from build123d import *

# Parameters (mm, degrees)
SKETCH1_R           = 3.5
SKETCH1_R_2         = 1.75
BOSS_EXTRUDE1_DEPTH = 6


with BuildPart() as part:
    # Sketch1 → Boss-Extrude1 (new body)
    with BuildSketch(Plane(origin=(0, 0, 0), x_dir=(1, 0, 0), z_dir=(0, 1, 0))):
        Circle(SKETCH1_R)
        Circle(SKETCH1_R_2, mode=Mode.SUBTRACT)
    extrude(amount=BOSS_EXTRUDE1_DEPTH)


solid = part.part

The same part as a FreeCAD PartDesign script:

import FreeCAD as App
import Part
import Sketcher

doc = App.newDocument("Part")
body = doc.addObject("PartDesign::Body", "Body")

sketch1 = doc.addObject("Sketcher::SketchObject", "Sketch")
body.addObject(sketch1)
sketch1.AttachmentSupport = (doc.XZ_Plane, [""])
sketch1.MapMode = "FlatFace"
sketch1.addGeometry([
    Part.Circle(App.Vector(0, 0, 0), App.Vector(0, 0, 1), 3.5),
    Part.Circle(App.Vector(0, 0, 0), App.Vector(0, 0, 1), 1.8),
], False)
sketch1.addConstraint([
    Sketcher.Constraint("Coincident", 0, 3, -1, 1),
    Sketcher.Constraint("Coincident", 1, 3, -1, 1),
    Sketcher.Constraint("Diameter", 0, 7.0),
    Sketcher.Constraint("Diameter", 1, 3.5),
])
pad1 = doc.addObject("PartDesign::Pad", "Pad")
body.addObject(pad1)
pad1.Profile = sketch1
pad1.Length = 6
pad1.Reversed = True

doc.recompute()
